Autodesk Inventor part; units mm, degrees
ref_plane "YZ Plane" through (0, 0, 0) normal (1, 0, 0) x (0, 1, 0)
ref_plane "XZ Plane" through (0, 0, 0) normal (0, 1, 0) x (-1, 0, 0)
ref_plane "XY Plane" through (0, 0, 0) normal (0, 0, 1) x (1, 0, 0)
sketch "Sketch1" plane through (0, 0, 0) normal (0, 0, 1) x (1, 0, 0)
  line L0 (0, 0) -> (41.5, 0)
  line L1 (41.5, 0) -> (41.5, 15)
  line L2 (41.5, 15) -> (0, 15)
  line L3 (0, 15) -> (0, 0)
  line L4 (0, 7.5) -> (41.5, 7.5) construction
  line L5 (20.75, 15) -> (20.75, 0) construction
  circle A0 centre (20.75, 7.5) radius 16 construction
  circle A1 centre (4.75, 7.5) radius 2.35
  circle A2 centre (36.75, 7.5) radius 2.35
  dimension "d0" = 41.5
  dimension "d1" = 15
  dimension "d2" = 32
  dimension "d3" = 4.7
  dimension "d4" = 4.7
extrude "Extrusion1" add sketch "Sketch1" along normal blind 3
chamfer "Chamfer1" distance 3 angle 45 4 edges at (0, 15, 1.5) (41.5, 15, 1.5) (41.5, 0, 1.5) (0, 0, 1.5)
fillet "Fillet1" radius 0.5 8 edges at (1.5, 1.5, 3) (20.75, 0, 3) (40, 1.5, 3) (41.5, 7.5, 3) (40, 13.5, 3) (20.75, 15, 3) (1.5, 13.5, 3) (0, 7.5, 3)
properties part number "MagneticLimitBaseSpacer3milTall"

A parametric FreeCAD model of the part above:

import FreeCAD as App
import Part
import Sketcher

V = App.Vector
Q = App.Units.Quantity


def edges_at(feature, points):
    """Names of the edges that pass closest to the given points."""
    edges = feature.Shape.Edges
    near = lambda p: min(range(len(edges)), key=lambda i: edges[i].distToShape(Part.Vertex(*p))[0])
    return sorted({f"Edge{near(p) + 1}" for p in points})


def add_polygon(sketch, points):
    """Adds a closed chain of lines whose ends are joined by coincident constraints."""
    first, n = sketch.GeometryCount, len(points)
    for a, b in zip(points, points[1:] + points[:1]):
        sketch.addGeometry(Part.LineSegment(App.Vector(*a, 0), App.Vector(*b, 0)), False)
    for i in range(n):
        sketch.addConstraint(Sketcher.Constraint("Coincident", first + i, 2, first + (i + 1) % n, 1))

doc = App.newDocument("Part")
body = doc.addObject("PartDesign::Body", "Body")

sketch1 = body.newObject("Sketcher::SketchObject", "Sketch")
sketch1.AttachmentSupport = (doc.getObject("XY_Plane"), [""])
sketch1.MapMode = "FlatFace"
add_polygon(sketch1, [(0, 15), (0, 0), (41.5, 0), (41.5, 15)])
sketch1.addGeometry(Part.Circle(V(4.8, 7.5, 0), V(0, 0, 1), 2.4), False)
sketch1.addGeometry(Part.Circle(V(36.8, 7.5, 0), V(0, 0, 1), 2.4), False)
sketch1.addConstraint(Sketcher.Constraint("Vertical", 0))
sketch1.addConstraint(Sketcher.Constraint("Horizontal", 1))
sketch1.addConstraint(Sketcher.Constraint("Vertical", 2))
sketch1.addConstraint(Sketcher.Constraint("Horizontal", 3))
sketch1.addConstraint(Sketcher.Constraint("Coincident", 0, 2, -1, 1))
sketch1.addConstraint(Sketcher.Constraint("Equal", 4, 5))
sketch1.addConstraint(Sketcher.Constraint("Horizontal", 4, 3, 5, 3))
sketch1.addConstraint(Sketcher.Constraint("Diameter", 4, Q("4.7 mm")))
sketch1.addConstraint(Sketcher.Constraint("DistanceY", 0, 2, 0, 1, Q("15 mm")))
sketch1.addConstraint(Sketcher.Constraint("DistanceX", 1, 1, 1, 2, Q("41.5 mm")))
sketch1.addConstraint(Sketcher.Constraint("DistanceX", 4, 3, 5, 3, Q("32 mm")))
sketch1.addConstraint(Sketcher.Constraint("DistanceY", -1, 1, 4, 3, Q("7.5 mm")))
sketch1.addConstraint(Sketcher.Constraint("DistanceX", -1, 1, 4, 3, Q("4.75 mm")))
pad1 = body.newObject("PartDesign::Pad", "Pad")
pad1.Profile = sketch1
pad1.Length = 3
doc.recompute()

chamfer = body.newObject("PartDesign::Chamfer", "Chamfer")
chamfer.Base = (pad1, edges_at(pad1, [
    (0, 15, 1.5),
    (41.5, 15, 1.5),
    (41.5, 0, 1.5),
    (0, 0, 1.5),
]))
chamfer.Size = 3
doc.recompute()

fillet = body.newObject("PartDesign::Fillet", "Fillet")
fillet.Base = (chamfer, edges_at(chamfer, [
    (1.5, 1.5, 3),
    (20.75, 0, 3),
    (40, 1.5, 3),
    (41.5, 7.5, 3),
    (40, 13.5, 3),
    (20.75, 15, 3),
    (1.5, 13.5, 3),
    (0, 7.5, 3),
]))
fillet.Radius = 0.5

doc.recompute()
